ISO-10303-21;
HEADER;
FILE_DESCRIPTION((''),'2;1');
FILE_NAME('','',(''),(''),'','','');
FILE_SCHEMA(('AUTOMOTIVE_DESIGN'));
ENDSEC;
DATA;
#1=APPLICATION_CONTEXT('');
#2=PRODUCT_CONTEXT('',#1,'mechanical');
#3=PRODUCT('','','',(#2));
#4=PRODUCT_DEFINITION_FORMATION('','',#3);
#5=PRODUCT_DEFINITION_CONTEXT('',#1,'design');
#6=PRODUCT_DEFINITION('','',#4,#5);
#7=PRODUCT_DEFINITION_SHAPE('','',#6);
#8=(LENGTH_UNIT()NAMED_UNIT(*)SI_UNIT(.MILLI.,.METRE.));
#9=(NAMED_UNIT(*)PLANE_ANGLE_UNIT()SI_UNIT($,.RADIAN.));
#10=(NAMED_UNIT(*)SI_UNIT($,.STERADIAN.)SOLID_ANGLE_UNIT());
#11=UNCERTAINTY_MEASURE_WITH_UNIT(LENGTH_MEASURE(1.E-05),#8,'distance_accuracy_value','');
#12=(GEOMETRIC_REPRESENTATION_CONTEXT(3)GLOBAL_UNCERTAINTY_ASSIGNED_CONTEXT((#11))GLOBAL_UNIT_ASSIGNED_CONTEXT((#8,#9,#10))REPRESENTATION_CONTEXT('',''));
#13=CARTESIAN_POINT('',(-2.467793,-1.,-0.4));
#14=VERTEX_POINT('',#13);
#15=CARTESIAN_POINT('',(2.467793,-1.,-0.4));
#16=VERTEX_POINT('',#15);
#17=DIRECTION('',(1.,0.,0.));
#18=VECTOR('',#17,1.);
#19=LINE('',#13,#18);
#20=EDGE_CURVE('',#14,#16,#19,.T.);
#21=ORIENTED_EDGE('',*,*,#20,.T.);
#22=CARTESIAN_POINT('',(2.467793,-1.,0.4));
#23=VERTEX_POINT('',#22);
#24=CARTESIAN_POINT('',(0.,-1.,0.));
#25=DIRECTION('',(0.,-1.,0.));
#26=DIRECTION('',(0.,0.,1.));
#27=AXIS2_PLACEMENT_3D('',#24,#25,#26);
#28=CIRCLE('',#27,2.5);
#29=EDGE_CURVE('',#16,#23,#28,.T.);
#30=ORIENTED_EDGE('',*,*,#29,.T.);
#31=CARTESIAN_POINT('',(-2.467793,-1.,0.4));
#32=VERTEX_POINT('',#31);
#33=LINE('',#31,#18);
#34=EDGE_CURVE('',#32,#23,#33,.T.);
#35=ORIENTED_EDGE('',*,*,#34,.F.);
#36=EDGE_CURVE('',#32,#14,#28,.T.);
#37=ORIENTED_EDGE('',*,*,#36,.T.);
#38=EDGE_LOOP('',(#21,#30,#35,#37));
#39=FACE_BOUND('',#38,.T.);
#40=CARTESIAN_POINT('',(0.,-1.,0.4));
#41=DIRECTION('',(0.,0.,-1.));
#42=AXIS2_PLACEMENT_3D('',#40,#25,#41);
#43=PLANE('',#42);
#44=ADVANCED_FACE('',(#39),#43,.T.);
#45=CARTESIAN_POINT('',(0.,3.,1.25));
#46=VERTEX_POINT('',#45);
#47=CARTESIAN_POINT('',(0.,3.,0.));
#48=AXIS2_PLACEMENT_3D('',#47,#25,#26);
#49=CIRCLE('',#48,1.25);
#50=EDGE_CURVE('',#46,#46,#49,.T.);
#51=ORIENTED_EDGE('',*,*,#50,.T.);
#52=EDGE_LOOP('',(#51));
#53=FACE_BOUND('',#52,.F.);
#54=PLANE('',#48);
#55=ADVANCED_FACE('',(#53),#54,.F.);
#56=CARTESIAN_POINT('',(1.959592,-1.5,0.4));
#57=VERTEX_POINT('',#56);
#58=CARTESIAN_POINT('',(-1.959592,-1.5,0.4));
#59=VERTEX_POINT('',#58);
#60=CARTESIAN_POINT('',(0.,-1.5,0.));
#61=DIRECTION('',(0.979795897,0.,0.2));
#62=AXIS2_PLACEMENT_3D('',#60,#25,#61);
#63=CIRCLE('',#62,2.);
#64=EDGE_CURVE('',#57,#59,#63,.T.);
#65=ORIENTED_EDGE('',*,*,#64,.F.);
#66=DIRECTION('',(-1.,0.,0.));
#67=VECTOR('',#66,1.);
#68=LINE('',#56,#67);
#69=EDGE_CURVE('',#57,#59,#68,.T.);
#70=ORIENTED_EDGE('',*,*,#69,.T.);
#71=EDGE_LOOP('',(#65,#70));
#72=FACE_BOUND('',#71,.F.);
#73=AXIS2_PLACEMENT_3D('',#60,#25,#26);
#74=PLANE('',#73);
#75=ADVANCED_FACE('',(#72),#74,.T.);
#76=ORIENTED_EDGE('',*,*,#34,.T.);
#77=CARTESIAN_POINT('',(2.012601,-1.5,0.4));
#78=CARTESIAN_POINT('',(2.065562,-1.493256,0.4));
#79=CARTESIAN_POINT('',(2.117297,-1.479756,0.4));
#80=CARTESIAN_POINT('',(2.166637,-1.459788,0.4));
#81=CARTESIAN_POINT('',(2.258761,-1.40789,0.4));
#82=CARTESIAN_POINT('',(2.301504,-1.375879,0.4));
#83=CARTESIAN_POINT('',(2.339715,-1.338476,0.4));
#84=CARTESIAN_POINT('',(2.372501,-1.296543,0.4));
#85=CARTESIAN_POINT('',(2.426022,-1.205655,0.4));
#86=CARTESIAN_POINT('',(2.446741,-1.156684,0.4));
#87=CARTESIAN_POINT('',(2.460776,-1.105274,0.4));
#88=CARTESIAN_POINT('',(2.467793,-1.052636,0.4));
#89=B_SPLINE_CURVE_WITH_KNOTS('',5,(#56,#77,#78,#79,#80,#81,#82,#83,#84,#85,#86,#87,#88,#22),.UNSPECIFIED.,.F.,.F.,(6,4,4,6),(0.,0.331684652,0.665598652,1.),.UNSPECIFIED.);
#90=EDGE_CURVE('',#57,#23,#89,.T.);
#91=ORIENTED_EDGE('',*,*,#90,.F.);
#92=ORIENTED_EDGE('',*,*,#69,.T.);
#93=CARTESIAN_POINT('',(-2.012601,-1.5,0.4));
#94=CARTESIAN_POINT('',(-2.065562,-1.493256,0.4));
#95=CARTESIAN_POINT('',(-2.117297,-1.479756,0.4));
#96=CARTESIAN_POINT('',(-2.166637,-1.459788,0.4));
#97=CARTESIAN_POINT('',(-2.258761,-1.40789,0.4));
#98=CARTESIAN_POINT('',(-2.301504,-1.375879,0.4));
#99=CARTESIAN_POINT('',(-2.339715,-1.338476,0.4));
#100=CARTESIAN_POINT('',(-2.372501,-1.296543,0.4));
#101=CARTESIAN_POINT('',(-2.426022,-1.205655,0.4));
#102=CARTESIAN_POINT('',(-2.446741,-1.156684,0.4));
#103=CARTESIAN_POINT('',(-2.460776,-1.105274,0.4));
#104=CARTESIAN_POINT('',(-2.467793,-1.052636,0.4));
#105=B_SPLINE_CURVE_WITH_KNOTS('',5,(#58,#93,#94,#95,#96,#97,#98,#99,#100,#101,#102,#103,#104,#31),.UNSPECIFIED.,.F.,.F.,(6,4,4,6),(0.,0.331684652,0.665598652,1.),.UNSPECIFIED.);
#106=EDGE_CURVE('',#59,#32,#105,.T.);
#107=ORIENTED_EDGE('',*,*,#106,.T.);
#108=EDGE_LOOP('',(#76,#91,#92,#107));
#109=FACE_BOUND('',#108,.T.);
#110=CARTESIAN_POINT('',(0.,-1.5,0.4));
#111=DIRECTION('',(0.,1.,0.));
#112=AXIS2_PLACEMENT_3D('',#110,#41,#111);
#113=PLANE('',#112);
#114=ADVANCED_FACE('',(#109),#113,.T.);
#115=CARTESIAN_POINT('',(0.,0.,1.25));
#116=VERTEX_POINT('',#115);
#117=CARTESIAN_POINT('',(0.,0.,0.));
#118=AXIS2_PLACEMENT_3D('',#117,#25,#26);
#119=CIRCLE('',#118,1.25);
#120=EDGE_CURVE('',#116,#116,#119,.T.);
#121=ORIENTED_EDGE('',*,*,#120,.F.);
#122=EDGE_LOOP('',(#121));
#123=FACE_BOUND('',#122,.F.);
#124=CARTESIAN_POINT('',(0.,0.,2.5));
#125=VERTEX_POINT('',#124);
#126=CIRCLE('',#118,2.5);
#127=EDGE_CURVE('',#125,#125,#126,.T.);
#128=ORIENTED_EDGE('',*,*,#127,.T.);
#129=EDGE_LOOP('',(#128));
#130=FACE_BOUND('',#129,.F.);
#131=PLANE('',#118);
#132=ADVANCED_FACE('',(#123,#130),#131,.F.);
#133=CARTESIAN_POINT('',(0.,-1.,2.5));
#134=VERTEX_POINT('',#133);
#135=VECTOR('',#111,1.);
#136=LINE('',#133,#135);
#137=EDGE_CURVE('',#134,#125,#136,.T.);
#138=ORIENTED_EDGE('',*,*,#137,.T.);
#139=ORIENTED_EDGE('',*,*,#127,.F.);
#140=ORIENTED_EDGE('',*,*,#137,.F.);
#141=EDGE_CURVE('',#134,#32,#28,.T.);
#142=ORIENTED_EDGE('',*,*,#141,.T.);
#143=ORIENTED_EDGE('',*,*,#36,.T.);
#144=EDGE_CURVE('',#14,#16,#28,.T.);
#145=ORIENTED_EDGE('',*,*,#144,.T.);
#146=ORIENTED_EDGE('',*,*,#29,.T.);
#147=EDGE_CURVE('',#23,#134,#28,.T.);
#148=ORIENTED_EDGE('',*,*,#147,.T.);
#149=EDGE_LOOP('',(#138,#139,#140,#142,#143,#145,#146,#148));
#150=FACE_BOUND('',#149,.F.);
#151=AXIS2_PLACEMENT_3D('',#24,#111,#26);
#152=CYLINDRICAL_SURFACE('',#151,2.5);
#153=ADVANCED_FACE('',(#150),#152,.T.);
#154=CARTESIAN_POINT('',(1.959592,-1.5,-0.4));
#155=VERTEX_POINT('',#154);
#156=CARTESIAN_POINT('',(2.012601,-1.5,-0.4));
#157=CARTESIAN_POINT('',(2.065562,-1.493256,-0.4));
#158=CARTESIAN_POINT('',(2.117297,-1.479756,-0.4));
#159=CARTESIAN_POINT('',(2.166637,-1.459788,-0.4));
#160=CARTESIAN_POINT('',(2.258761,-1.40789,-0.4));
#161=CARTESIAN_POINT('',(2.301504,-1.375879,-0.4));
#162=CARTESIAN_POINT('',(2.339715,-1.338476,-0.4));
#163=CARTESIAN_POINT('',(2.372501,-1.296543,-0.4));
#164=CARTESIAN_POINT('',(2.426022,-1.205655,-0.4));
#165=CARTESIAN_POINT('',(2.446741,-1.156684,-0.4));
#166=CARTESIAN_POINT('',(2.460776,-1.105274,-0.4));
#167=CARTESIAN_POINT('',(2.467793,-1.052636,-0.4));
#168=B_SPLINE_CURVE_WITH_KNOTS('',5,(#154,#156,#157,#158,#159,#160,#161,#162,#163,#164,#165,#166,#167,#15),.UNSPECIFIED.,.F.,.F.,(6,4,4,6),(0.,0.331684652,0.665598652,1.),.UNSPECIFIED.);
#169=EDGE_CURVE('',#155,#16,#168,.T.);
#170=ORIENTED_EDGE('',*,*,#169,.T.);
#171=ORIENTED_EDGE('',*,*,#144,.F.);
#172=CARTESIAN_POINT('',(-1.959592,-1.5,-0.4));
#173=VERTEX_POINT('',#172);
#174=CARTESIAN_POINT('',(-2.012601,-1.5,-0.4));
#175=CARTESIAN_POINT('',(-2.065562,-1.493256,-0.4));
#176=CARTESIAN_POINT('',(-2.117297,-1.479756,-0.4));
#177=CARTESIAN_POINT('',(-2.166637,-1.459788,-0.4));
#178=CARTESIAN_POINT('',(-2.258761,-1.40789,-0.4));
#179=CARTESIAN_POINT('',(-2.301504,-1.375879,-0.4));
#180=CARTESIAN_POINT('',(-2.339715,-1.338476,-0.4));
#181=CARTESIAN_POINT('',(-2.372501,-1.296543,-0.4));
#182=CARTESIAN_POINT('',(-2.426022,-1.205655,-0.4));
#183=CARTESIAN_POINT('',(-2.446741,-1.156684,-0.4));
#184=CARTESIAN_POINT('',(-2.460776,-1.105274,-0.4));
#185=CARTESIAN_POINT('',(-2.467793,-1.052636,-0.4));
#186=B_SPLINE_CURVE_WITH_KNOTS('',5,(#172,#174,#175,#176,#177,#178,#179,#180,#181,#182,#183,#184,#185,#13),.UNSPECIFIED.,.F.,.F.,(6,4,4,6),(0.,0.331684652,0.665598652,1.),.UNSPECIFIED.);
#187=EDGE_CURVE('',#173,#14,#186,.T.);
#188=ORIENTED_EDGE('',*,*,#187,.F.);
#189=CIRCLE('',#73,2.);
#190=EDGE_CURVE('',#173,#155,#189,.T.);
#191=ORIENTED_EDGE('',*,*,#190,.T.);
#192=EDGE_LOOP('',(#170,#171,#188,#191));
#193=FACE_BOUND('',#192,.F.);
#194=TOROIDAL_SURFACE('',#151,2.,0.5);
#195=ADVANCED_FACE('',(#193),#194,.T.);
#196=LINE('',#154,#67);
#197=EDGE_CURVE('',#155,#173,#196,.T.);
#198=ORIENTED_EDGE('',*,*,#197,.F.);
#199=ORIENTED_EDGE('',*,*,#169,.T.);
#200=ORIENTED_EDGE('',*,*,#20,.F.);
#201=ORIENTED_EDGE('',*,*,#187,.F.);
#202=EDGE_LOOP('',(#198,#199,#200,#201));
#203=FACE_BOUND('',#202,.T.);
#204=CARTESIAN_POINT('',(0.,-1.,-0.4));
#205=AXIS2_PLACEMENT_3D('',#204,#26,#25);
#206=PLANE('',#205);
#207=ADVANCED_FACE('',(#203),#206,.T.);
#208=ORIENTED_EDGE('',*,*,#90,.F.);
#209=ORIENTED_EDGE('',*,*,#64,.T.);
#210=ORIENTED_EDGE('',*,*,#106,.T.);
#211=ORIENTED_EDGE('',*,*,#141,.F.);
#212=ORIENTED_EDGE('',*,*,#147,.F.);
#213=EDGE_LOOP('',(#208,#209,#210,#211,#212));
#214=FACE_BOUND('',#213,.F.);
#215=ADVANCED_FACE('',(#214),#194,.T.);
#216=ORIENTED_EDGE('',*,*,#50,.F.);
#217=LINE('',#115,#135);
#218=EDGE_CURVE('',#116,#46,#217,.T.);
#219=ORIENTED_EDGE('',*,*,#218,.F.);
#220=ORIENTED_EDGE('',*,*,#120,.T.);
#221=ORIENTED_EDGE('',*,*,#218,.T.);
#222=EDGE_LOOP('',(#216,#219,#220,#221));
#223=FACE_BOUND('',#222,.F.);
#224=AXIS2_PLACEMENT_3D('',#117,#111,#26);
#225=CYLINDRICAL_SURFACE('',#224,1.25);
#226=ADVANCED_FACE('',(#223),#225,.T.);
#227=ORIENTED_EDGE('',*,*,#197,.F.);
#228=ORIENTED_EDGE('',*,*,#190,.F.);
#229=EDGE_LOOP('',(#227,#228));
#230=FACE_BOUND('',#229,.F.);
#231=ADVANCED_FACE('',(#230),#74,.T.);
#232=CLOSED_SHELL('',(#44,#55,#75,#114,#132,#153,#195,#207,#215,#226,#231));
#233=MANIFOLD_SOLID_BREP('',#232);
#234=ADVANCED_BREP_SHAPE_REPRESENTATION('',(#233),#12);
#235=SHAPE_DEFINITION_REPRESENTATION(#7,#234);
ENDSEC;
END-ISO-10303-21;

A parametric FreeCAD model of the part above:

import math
import FreeCAD as App
import Part
import Sketcher

V = App.Vector
Q = App.Units.Quantity

doc = App.newDocument("Part")
body = doc.addObject("PartDesign::Body", "Body")

sketch1 = body.newObject("Sketcher::SketchObject", "Sketch")
sketch1.AttachmentSupport = (doc.getObject("YZ_Plane"), [""])
sketch1.MapMode = "FlatFace"
sketch1.addGeometry([
    Part.LineSegment(V(-1.5, 0, 0), V(3, 0, 0)),
    Part.LineSegment(V(3, 0, 0), V(3, 1.2, 0)),
    Part.LineSegment(V(3, 1.2, 0), V(0, 1.2, 0)),
    Part.LineSegment(V(0, 1.2, 0), V(0, 2.5, 0)),
    Part.LineSegment(V(0, 2.5, 0), V(-1, 2.5, 0)),
    Part.ArcOfCircle(Part.Circle(V(-1, 2, 0), V(0, 0, 1), 0.5), math.radians(90), math.radians(180)),
    Part.LineSegment(V(-1.5, 2, 0), V(-1.5, 0, 0)),
], False)
sketch1.addConstraint([
    Sketcher.Constraint("Coincident", 0, 2, 1, 1),
    Sketcher.Constraint("Coincident", 1, 2, 2, 1),
    Sketcher.Constraint("Coincident", 2, 2, 3, 1),
    Sketcher.Constraint("Coincident", 3, 2, 4, 1),
    Sketcher.Constraint("Tangent", 4, 2, 5, 1),
    Sketcher.Constraint("Tangent", 5, 2, 6, 1),
    Sketcher.Constraint("Coincident", 6, 2, 0, 1),
    Sketcher.Constraint("Horizontal", 0),
    Sketcher.Constraint("Vertical", 1),
    Sketcher.Constraint("Horizontal", 2),
    Sketcher.Constraint("Vertical", 3),
    Sketcher.Constraint("Horizontal", 4),
    Sketcher.Constraint("Vertical", 6),
    Sketcher.Constraint("PointOnObject", 0, 2, -1),
    Sketcher.Constraint("PointOnObject", 2, 2, -2),
    Sketcher.Constraint("Equal", 1, 3),
    Sketcher.Constraint("Radius", 5, Q("0.5 mm")),
    Sketcher.Constraint("DistanceX", 2, 2, 2, 1, Q("3 mm")),
    Sketcher.Constraint("DistanceX", 4, 2, 4, 1, Q("1 mm")),
    Sketcher.Constraint("DistanceY", 6, 2, 6, 1, Q("2 mm")),
])
revolution = body.newObject("PartDesign::Revolution", "Revolution")
revolution.Profile = sketch1
revolution.ReferenceAxis = (sketch1, ["H_Axis"])
revolution.Angle = 360

sketch2 = body.newObject("Sketcher::SketchObject", "Sketch001")
sketch2.AttachmentSupport = (doc.getObject("YZ_Plane"), [""])
sketch2.MapMode = "FlatFace"
sketch2.addGeometry([
    Part.LineSegment(V(-1.5, -0.4, 0), V(-1, -0.4, 0)),
    Part.LineSegment(V(-1, -0.4, 0), V(-1, 0.4, 0)),
    Part.LineSegment(V(-1, 0.4, 0), V(-1.5, 0.4, 0)),
    Part.LineSegment(V(-1.5, 0.4, 0), V(-1.5, -0.4, 0)),
], False)
sketch2.addConstraint([
    Sketcher.Constraint("Coincident", 0, 2, 1, 1),
    Sketcher.Constraint("Coincident", 1, 2, 2, 1),
    Sketcher.Constraint("Coincident", 2, 2, 3, 1),
    Sketcher.Constraint("Coincident", 3, 2, 0, 1),
    Sketcher.Constraint("Horizontal", 0),
    Sketcher.Constraint("Vertical", 1),
    Sketcher.Constraint("Horizontal", 2),
    Sketcher.Constraint("Vertical", 3),
    Sketcher.Constraint("DistanceX", 0, 1, 0, 2, Q("0.5 mm")),
    Sketcher.Constraint("DistanceY", 1, 1, 1, 2, Q("0.8 mm")),
    Sketcher.Constraint("DistanceX", 0, 2, -1, 1, Q("1 mm")),
    Sketcher.Constraint("DistanceY", 0, 2, -1, 1, Q("0.4 mm")),
])
pocket1 = body.newObject("PartDesign::Pocket", "Pocket")
pocket1.Profile = sketch2
pocket1.Type = "ThroughAll"
pocket1.Midplane = True

doc.recompute()
